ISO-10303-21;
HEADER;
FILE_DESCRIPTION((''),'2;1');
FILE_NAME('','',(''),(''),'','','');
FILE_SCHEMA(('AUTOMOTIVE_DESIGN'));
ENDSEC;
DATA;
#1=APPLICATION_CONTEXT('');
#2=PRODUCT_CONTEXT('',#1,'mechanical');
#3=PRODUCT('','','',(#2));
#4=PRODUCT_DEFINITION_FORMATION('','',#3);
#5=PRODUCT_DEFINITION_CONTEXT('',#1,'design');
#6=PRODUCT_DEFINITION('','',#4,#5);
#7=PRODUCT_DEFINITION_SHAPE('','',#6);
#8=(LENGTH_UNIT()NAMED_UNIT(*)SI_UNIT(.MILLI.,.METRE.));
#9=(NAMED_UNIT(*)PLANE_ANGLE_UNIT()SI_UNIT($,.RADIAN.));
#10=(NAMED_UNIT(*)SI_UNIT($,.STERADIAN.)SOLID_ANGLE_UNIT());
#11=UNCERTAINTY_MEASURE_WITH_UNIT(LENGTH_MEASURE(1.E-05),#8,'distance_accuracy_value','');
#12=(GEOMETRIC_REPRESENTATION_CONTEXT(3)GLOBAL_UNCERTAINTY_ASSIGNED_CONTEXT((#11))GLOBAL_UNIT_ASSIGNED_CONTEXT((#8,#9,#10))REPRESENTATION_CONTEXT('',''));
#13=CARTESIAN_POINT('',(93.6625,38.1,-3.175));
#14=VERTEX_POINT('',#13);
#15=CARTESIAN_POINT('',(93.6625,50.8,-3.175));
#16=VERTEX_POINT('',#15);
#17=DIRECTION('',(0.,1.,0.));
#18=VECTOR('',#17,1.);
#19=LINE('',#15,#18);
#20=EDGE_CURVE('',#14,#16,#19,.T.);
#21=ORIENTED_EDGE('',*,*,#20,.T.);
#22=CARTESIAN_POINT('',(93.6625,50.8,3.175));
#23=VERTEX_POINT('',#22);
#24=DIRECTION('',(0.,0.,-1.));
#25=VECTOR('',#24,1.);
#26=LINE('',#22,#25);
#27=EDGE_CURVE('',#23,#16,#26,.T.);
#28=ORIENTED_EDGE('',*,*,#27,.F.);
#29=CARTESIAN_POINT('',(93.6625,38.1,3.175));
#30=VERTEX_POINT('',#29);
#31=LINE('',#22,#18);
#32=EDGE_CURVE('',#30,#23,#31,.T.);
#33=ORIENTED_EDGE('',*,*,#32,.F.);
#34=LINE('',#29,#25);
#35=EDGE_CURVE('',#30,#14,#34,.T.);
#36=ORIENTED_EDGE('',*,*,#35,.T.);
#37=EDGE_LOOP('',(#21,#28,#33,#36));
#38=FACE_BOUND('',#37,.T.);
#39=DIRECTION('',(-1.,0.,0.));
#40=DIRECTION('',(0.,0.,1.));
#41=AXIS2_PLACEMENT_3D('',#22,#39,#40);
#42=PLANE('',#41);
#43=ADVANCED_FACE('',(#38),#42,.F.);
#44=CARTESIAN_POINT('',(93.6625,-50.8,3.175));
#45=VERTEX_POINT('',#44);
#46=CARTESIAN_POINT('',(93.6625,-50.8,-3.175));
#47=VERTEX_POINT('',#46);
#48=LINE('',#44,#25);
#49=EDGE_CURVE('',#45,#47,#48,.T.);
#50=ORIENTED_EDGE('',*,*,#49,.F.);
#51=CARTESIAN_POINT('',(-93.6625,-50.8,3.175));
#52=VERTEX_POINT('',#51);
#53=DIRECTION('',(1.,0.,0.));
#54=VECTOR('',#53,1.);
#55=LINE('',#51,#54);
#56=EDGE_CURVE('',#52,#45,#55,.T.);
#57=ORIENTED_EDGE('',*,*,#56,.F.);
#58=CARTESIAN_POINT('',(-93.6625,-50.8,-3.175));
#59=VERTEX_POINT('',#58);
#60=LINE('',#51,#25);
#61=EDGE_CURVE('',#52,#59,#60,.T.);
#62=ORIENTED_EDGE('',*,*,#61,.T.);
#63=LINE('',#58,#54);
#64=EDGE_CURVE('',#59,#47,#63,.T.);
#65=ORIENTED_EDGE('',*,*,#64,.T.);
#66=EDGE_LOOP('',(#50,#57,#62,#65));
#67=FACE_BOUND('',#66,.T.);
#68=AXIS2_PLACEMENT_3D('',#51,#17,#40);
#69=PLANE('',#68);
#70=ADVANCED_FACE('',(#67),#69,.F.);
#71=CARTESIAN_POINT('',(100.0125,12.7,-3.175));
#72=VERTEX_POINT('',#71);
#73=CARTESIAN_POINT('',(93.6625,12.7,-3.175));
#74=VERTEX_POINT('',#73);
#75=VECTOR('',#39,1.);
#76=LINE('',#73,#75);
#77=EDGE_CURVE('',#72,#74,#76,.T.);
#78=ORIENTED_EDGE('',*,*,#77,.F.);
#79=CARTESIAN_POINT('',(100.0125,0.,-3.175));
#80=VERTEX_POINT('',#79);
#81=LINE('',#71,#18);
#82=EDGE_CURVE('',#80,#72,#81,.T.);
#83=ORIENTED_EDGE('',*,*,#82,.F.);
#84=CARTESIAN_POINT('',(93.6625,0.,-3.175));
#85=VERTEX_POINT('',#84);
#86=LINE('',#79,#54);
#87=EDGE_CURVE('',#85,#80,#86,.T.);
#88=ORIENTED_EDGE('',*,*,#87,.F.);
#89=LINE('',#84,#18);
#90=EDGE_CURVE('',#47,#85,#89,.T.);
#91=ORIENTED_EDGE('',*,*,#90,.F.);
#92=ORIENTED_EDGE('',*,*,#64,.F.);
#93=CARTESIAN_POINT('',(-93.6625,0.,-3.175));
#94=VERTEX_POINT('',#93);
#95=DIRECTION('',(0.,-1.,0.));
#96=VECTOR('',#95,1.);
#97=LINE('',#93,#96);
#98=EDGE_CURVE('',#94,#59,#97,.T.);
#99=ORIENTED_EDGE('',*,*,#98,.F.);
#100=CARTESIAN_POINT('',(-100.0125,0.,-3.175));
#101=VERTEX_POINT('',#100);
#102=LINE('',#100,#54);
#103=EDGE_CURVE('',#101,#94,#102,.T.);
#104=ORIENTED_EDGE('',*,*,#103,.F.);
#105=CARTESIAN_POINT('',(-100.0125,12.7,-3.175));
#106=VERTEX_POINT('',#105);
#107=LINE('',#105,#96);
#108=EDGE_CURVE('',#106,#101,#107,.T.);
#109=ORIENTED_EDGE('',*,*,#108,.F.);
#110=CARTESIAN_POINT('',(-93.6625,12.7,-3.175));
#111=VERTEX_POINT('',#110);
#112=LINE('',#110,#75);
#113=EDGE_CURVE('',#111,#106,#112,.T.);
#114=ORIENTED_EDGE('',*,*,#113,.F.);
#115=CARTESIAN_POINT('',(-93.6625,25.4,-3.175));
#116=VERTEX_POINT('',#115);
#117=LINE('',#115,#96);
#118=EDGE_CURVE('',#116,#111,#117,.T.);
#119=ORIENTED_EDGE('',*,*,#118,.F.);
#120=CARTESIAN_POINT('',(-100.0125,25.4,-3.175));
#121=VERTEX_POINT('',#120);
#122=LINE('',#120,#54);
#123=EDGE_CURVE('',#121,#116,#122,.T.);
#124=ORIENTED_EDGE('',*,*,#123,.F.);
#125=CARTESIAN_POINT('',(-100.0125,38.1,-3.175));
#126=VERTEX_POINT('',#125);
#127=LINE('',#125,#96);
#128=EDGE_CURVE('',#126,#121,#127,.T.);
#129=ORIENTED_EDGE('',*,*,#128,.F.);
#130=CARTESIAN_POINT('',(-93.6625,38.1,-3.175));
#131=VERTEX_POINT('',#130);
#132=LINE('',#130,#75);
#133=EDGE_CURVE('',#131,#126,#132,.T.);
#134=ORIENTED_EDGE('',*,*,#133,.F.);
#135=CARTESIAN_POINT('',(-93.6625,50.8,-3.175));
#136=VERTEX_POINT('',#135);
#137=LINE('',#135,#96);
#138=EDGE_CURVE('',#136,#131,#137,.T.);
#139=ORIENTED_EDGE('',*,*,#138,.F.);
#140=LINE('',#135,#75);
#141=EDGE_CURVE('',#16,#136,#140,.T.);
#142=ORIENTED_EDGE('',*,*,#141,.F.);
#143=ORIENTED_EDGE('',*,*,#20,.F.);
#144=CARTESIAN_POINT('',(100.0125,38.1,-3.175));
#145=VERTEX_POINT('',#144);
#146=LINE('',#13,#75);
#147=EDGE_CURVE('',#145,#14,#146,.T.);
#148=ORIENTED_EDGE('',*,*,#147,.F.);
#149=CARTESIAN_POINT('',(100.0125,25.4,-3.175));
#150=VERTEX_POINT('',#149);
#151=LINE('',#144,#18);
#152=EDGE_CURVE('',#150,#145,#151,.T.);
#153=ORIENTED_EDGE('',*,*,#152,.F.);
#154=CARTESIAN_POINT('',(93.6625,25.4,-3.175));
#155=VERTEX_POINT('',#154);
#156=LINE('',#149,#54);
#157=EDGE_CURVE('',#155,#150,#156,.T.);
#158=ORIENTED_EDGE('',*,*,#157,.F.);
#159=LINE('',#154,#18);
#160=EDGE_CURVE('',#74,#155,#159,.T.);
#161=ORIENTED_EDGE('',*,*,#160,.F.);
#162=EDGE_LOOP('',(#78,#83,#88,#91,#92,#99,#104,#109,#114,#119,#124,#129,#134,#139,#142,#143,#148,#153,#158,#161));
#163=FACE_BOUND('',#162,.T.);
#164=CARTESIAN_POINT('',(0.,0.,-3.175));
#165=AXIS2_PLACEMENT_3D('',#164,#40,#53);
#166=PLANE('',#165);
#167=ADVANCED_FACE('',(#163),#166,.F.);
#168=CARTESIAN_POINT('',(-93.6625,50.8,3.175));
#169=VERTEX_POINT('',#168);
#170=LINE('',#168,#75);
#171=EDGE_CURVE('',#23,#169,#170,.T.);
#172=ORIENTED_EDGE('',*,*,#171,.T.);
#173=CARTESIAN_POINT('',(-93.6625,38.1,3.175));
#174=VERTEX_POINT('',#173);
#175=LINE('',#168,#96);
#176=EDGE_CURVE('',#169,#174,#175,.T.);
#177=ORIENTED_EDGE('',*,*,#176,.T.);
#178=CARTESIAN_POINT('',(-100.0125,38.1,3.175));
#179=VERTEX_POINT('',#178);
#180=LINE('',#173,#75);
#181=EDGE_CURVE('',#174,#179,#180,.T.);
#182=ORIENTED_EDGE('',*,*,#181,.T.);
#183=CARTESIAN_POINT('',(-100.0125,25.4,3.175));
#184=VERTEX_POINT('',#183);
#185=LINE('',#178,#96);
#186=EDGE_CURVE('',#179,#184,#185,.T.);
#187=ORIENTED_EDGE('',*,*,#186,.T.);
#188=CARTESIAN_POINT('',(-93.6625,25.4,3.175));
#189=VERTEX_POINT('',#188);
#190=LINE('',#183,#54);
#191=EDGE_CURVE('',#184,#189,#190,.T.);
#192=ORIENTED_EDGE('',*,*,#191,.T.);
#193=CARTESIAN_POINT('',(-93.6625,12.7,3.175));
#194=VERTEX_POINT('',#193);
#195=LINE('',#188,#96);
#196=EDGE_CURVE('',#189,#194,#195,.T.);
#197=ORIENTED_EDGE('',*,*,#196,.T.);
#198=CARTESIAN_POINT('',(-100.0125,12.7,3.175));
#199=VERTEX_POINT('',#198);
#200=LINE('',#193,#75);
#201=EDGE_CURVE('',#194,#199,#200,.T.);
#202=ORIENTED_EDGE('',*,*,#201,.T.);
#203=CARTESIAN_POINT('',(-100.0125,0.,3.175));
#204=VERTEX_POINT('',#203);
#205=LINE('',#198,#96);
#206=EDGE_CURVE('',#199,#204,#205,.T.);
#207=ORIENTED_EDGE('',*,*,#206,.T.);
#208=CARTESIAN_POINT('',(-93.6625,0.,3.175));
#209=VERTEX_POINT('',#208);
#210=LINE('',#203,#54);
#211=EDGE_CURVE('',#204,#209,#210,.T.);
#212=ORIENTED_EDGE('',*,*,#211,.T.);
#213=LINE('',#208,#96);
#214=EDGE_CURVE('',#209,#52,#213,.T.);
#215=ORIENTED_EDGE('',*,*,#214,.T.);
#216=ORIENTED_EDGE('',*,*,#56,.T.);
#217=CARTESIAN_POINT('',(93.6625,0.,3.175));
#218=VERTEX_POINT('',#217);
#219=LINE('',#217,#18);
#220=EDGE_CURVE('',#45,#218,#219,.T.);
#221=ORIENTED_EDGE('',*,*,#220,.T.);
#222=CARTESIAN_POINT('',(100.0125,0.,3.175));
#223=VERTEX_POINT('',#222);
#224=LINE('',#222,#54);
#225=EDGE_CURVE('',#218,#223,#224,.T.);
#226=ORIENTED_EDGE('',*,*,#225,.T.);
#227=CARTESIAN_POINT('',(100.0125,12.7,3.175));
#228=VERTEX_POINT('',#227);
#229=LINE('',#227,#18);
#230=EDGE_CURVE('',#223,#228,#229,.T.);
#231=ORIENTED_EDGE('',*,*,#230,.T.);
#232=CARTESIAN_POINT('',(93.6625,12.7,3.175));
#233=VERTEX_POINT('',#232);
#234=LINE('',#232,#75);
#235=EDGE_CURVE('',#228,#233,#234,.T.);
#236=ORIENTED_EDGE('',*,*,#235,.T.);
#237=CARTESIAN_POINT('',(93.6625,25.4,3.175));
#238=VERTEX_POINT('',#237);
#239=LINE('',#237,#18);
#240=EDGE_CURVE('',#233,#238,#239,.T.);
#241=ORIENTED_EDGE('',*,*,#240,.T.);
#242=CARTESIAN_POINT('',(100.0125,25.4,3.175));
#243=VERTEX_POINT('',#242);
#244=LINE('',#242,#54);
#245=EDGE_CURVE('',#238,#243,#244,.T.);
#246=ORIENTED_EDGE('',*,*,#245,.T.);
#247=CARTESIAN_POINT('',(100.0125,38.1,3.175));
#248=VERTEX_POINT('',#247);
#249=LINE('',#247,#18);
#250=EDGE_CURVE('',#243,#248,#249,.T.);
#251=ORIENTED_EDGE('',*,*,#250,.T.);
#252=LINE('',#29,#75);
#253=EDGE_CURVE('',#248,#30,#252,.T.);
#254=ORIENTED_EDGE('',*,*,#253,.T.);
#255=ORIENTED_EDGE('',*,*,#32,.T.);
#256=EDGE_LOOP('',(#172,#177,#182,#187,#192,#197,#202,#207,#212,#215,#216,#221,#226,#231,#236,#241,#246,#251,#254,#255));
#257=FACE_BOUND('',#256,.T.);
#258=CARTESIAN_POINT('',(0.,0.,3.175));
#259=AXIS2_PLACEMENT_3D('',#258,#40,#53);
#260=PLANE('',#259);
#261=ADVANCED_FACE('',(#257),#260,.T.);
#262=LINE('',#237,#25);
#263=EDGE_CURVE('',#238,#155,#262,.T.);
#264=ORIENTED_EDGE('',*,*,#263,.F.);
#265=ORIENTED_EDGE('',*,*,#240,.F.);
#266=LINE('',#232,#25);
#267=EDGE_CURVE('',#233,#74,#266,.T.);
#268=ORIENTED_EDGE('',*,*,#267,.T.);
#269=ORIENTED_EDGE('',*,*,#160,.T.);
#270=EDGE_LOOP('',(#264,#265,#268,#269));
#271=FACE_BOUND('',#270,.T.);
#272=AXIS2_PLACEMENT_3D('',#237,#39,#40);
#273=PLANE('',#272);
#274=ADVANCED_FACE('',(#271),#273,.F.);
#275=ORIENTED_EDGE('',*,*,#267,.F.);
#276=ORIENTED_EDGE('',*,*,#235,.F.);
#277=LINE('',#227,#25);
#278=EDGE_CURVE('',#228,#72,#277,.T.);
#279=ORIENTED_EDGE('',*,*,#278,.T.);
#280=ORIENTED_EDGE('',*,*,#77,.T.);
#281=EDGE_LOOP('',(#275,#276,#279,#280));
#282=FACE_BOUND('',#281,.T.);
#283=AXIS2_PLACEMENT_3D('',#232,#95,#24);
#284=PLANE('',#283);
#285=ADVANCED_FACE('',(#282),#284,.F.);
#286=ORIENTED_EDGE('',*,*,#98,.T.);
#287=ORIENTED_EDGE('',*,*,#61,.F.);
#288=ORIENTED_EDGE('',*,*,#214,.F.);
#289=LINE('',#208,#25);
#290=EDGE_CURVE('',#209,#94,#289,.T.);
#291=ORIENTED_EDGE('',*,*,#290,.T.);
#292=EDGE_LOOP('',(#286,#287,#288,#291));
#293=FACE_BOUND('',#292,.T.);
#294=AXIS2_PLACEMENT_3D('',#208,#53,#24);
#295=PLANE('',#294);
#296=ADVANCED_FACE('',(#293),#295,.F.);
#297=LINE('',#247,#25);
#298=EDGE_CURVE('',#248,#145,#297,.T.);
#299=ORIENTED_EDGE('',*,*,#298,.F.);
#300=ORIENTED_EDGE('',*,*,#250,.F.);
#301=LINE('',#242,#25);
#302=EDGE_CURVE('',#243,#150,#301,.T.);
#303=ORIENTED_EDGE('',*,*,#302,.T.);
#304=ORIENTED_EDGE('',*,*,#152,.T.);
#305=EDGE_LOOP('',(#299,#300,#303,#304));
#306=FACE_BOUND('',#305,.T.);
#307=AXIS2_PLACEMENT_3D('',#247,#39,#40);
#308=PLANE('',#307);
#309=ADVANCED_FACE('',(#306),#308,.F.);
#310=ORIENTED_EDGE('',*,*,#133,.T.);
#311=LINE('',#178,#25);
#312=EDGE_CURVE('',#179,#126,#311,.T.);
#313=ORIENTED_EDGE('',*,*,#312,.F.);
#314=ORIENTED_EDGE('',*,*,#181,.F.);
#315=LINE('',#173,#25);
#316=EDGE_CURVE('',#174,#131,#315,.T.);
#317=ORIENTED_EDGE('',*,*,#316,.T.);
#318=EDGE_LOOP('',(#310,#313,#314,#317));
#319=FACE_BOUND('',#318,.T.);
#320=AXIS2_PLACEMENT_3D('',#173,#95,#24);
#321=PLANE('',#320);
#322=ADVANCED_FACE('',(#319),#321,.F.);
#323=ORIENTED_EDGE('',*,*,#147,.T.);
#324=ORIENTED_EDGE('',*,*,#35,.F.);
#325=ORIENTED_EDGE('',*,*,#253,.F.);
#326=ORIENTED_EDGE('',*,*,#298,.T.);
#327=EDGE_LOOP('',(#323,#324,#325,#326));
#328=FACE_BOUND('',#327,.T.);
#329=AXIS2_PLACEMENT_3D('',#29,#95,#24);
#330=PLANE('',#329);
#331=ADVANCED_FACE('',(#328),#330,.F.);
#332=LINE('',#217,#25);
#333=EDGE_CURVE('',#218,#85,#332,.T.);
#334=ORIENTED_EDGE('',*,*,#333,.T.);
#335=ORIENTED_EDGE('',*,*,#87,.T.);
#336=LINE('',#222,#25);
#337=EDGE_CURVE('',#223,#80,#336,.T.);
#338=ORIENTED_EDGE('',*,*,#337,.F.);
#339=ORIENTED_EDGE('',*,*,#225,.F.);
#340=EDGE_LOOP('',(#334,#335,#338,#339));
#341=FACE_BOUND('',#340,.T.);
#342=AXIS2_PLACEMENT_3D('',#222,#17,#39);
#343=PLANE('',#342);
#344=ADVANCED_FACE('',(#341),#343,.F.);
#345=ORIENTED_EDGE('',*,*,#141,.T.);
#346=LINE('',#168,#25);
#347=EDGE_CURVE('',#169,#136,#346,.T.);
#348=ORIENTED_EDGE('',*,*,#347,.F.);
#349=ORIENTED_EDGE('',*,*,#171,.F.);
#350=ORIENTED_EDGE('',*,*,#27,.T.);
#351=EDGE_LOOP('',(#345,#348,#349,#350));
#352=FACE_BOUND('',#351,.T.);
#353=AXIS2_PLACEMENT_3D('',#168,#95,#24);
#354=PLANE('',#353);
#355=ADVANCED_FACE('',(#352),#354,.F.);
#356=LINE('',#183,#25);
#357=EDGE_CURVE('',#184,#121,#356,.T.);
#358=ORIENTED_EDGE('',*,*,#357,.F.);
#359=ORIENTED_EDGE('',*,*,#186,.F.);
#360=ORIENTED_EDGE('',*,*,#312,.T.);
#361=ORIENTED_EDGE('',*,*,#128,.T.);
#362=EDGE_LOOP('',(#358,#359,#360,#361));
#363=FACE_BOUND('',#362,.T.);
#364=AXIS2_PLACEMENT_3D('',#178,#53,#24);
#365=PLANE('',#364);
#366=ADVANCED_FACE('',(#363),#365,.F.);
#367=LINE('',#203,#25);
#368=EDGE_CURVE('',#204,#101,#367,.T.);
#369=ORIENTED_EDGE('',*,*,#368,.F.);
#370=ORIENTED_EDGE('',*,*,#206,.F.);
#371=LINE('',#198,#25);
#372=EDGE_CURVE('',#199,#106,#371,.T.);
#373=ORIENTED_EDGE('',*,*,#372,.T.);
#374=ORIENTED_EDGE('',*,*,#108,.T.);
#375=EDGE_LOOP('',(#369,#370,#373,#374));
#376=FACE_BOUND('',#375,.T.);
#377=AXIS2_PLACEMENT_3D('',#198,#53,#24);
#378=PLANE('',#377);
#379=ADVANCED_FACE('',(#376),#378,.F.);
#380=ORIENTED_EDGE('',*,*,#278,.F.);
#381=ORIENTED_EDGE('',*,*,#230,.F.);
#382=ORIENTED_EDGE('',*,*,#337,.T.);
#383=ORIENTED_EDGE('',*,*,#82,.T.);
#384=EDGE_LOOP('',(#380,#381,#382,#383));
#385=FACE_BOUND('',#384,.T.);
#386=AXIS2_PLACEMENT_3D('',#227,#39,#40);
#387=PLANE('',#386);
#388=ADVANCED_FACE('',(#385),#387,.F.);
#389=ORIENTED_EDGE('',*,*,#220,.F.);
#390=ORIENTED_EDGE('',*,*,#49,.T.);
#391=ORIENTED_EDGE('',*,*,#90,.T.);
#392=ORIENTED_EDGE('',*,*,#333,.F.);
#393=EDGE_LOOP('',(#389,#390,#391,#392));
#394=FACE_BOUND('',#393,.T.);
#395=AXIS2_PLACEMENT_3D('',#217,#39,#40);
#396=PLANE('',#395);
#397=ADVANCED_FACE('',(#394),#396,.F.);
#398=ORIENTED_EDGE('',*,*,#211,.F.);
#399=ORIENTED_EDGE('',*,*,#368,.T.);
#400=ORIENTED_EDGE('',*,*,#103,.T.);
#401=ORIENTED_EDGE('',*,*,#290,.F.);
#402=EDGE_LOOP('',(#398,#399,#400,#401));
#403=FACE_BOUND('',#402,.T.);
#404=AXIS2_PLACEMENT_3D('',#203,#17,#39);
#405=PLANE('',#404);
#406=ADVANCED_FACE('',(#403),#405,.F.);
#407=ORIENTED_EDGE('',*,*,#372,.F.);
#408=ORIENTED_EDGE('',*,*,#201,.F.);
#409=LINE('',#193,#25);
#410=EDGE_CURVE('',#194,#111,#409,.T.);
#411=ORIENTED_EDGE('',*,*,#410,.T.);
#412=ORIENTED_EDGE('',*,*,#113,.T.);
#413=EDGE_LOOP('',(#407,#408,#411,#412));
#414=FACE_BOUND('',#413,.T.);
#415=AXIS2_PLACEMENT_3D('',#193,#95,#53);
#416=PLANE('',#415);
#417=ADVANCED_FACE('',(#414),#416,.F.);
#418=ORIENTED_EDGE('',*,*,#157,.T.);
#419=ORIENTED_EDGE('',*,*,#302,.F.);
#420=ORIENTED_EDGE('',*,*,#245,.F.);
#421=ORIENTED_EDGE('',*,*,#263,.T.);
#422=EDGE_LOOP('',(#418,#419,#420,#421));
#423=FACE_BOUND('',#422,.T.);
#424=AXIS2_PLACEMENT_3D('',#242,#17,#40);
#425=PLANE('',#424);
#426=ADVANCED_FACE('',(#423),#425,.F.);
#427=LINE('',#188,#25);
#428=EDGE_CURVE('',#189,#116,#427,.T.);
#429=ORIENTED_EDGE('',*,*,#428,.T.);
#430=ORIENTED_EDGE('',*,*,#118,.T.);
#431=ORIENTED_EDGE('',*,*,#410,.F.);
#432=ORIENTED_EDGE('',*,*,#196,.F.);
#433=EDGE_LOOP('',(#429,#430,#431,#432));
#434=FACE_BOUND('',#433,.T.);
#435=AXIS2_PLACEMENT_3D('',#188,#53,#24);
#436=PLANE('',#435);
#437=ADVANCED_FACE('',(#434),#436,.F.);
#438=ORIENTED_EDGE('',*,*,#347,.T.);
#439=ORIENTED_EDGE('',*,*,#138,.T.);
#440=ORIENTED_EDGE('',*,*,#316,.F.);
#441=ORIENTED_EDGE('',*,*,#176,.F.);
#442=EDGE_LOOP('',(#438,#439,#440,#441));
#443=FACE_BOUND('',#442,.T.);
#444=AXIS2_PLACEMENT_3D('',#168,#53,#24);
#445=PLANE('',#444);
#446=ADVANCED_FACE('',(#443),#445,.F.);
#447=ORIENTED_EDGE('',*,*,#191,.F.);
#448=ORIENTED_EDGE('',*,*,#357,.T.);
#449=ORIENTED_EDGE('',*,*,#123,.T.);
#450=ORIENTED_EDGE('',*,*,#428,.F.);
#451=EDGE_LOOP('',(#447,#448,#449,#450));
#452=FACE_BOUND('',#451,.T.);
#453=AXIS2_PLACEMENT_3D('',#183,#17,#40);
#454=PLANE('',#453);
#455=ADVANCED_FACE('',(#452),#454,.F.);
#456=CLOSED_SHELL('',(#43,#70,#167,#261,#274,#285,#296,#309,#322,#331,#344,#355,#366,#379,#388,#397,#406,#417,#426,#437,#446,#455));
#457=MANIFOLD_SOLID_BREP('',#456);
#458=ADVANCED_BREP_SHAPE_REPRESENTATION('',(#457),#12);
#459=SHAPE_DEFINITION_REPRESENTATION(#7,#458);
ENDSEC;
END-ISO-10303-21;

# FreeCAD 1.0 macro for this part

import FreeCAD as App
import Part
import Sketcher
Q = App.Units.Quantity


def add_polygon(sketch, points):
    """Adds a closed chain of lines whose ends are joined by coincident constraints."""
    first, n = sketch.GeometryCount, len(points)
    for a, b in zip(points, points[1:] + points[:1]):
        sketch.addGeometry(Part.LineSegment(App.Vector(*a, 0), App.Vector(*b, 0)), False)
    for i in range(n):
        sketch.addConstraint(Sketcher.Constraint("Coincident", first + i, 2, first + (i + 1) % n, 1))

doc = App.newDocument("Part")
body = doc.addObject("PartDesign::Body", "Body")

sketch1 = body.newObject("Sketcher::SketchObject", "Sketch")
sketch1.AttachmentSupport = (doc.getObject("XY_Plane"), [""])
sketch1.MapMode = "FlatFace"
add_polygon(sketch1, [(-94, 51), (-94, 38), (-100, 38), (-100, 25), (-94, 25), (-94, 13), (-100, 13), (-100, 0), (-94, 0), (-94, -51), (94, -51), (94, 0), (100, 0), (100, 13), (94, 13), (94, 25), (100, 25), (100, 38), (94, 38), (94, 51)])
sketch1.addConstraint([
    Sketcher.Constraint("Vertical", 0),
    Sketcher.Constraint("Horizontal", 1),
    Sketcher.Constraint("Vertical", 2),
    Sketcher.Constraint("Horizontal", 3),
    Sketcher.Constraint("Vertical", 4),
    Sketcher.Constraint("Horizontal", 5),
    Sketcher.Constraint("Vertical", 6),
    Sketcher.Constraint("Horizontal", 7),
    Sketcher.Constraint("Vertical", 8),
    Sketcher.Constraint("Horizontal", 9),
    Sketcher.Constraint("Vertical", 10),
    Sketcher.Constraint("Horizontal", 11),
    Sketcher.Constraint("Vertical", 12),
    Sketcher.Constraint("Horizontal", 13),
    Sketcher.Constraint("Vertical", 14),
    Sketcher.Constraint("Horizontal", 15),
    Sketcher.Constraint("Vertical", 16),
    Sketcher.Constraint("Horizontal", 17),
    Sketcher.Constraint("Vertical", 18),
    Sketcher.Constraint("Horizontal", 19),
    Sketcher.Constraint("Symmetric", 7, 2, 10, 2, -1, 1),
    Sketcher.Constraint("Symmetric", 8, 2, 18, 2, -1, 1),
    Sketcher.Constraint("Symmetric", 6, 2, 11, 2, -2),
    Sketcher.Constraint("Symmetric", 4, 2, 13, 2, -2),
    Sketcher.Constraint("Symmetric", 2, 2, 15, 2, -2),
    Sketcher.Constraint("Symmetric", 0, 2, 17, 2, -2),
    Sketcher.Constraint("Vertical", 0, 2, 3, 2),
    Sketcher.Constraint("Vertical", 2, 2, 5, 2),
    Sketcher.Constraint("Equal", 0, 2),
    Sketcher.Constraint("Equal", 2, 4),
    Sketcher.Constraint("Equal", 4, 6),
    Sketcher.Constraint("DistanceY", 8, 2, 8, 1, Q("2 in")),
    Sketcher.Constraint("DistanceX", 1, 2, 1, 1, Q("0.25 in")),
    Sketcher.Constraint("DistanceX", 9, 1, 9, 2, Q("7.375 in")),
])
pad1 = body.newObject("PartDesign::Pad", "Pad")
pad1.Profile = sketch1
pad1.Length = Q("0.25 in")
pad1.Midplane = True

doc.recompute()
